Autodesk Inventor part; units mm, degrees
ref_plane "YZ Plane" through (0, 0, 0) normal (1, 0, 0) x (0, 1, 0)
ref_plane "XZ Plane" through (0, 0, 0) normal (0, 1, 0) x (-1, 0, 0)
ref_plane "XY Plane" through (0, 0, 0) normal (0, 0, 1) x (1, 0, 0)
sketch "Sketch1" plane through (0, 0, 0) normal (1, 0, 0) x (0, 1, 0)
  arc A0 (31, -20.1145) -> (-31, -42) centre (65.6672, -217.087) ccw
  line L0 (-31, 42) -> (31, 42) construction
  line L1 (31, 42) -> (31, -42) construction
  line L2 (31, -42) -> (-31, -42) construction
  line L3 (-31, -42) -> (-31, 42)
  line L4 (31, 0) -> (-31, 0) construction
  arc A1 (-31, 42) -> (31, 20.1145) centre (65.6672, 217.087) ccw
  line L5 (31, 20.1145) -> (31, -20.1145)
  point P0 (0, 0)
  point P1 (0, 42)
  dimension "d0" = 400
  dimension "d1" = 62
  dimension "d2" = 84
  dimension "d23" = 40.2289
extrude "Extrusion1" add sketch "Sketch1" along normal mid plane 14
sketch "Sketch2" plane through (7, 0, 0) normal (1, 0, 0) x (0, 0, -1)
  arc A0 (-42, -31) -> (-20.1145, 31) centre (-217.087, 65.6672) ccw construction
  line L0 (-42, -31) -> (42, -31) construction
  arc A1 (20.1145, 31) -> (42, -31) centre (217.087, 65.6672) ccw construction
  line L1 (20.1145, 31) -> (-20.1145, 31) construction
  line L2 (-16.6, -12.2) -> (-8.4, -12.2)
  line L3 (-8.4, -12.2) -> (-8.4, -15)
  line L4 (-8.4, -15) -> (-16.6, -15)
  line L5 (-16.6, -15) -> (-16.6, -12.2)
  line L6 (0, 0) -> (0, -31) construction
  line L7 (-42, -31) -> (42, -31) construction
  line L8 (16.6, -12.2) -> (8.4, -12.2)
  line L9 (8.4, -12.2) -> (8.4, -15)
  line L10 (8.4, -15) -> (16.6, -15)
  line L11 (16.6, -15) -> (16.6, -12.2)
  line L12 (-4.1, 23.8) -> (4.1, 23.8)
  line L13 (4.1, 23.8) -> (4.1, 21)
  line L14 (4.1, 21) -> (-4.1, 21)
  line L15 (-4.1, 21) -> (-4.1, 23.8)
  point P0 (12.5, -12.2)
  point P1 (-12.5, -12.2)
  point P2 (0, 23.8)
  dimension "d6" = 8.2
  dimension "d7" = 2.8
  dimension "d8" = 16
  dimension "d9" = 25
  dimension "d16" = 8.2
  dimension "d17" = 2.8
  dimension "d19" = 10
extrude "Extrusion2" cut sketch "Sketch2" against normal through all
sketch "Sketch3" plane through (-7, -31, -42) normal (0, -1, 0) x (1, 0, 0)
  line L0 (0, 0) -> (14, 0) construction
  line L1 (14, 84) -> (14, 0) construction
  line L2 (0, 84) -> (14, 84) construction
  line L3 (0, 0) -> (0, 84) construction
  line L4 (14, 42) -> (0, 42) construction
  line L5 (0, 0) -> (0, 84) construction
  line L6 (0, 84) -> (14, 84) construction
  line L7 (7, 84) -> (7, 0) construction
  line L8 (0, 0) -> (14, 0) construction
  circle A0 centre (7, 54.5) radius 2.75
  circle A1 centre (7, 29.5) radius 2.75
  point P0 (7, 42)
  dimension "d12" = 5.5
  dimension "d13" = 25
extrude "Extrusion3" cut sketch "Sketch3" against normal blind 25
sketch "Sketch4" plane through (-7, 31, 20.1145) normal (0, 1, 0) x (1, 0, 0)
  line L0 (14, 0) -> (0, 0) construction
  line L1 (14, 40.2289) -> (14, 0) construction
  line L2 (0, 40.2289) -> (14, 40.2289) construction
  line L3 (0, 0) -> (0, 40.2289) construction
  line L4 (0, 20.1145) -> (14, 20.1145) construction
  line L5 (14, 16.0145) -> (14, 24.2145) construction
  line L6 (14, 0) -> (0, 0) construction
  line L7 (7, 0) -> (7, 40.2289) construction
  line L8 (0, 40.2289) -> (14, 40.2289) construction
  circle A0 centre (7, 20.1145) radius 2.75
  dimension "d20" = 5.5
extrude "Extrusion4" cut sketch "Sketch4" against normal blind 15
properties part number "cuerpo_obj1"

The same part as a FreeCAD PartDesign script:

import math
import FreeCAD as App
import Part
import Sketcher

V = App.Vector

doc = App.newDocument("Part")
body = doc.addObject("PartDesign::Body", "Body")

# Sketch on YZ plane
sketch1 = doc.addObject("Sketcher::SketchObject", "Sketch")
body.addObject(sketch1)
sketch1.AttachmentSupport = (doc.YZ_Plane, [""])
sketch1.MapMode = "FlatFace"
sketch1.addGeometry([
    Part.ArcOfCircle(Part.Circle(V(66, -217, 0), V(0, 0, 1), 200), math.radians(99.98), math.radians(118.9)),
    Part.LineSegment(V(31, -20, 0), V(31, 20, 0)),
    Part.ArcOfCircle(Part.Circle(V(66, 217, 0), V(0, 0, 1), 200), math.radians(-118.9), math.radians(-99.98)),
    Part.LineSegment(V(-31, 42, 0), V(-31, -42, 0)),
], False)
sketch1.addConstraint([
    Sketcher.Constraint("Coincident", 0, 1, 1, 1),
    Sketcher.Constraint("Coincident", 1, 2, 2, 2),
    Sketcher.Constraint("Coincident", 2, 1, 3, 1),
    Sketcher.Constraint("Coincident", 3, 2, 0, 2),
    Sketcher.Constraint("Vertical", 1),
    Sketcher.Constraint("Vertical", 3),
    Sketcher.Constraint("DistanceY", 3, 2, 3, 1, 84.0),
    Sketcher.Constraint("DistanceX", 2, 1, 1, 2, 62.0),
    Sketcher.Constraint("DistanceY", 1, 1, 1, 2, 40.229),
    Sketcher.Constraint("DistanceX", -1, 1, 0, 1, 31.0),
    Sketcher.Constraint("DistanceY", -1, 1, 2, 1, 42.0),
    Sketcher.Constraint("Radius", 0, 200.0022),
    Sketcher.Constraint("Radius", 2, 199.9978),
    Sketcher.Constraint("DistanceY", -1, 1, 2, 3, 217.085),
])
pad1 = doc.addObject("PartDesign::Pad", "Pad")
body.addObject(pad1)
pad1.Profile = sketch1
pad1.Length = 14
pad1.Midplane = True

# Sketch on YZ plane
sketch2 = doc.addObject("Sketcher::SketchObject", "Sketch001")
body.addObject(sketch2)
sketch2.AttachmentSupport = (doc.YZ_Plane, [""])
sketch2.MapMode = "FlatFace"
sketch2.AttachmentOffset = App.Placement(V(0, 0, 7), App.Rotation())
sketch2.addGeometry([
    Part.LineSegment(V(-12.2, 8.4, 0), V(-12.2, 16.6, 0)),  # 0
    Part.LineSegment(V(-12.2, 16.6, 0), V(-15, 16.6, 0)),  # 1
    Part.LineSegment(V(-15, 16.6, 0), V(-15, 8.4, 0)),  # 2
    Part.LineSegment(V(-15, 8.4, 0), V(-12.2, 8.4, 0)),  # 3
    Part.LineSegment(V(-15, -16.6, 0), V(-12.2, -16.6, 0)),  # 4
    Part.LineSegment(V(-12.2, -16.6, 0), V(-12.2, -8.4, 0)),  # 5
    Part.LineSegment(V(-12.2, -8.4, 0), V(-15, -8.4, 0)),  # 6
    Part.LineSegment(V(-15, -8.4, 0), V(-15, -16.6, 0)),  # 7
    Part.LineSegment(V(23.8, -4.1, 0), V(23.8, 4.1, 0)),  # 8
    Part.LineSegment(V(23.8, 4.1, 0), V(21, 4.1, 0)),  # 9
    Part.LineSegment(V(21, 4.1, 0), V(21, -4.1, 0)),  # 10
    Part.LineSegment(V(21, -4.1, 0), V(23.8, -4.1, 0)),  # 11
], False)
sketch2.addConstraint([
    Sketcher.Constraint("Coincident", 0, 2, 1, 1),
    Sketcher.Constraint("Coincident", 1, 2, 2, 1),
    Sketcher.Constraint("Coincident", 2, 2, 3, 1),
    Sketcher.Constraint("Coincident", 3, 2, 0, 1),
    Sketcher.Constraint("Coincident", 4, 2, 5, 1),
    Sketcher.Constraint("Coincident", 5, 2, 6, 1),
    Sketcher.Constraint("Coincident", 6, 2, 7, 1),
    Sketcher.Constraint("Coincident", 7, 2, 4, 1),
    Sketcher.Constraint("Coincident", 8, 2, 9, 1),
    Sketcher.Constraint("Coincident", 9, 2, 10, 1),
    Sketcher.Constraint("Coincident", 10, 2, 11, 1),
    Sketcher.Constraint("Coincident", 11, 2, 8, 1),
    Sketcher.Constraint("Vertical", 0),
    Sketcher.Constraint("Horizontal", 1),
    Sketcher.Constraint("Vertical", 2),
    Sketcher.Constraint("Horizontal", 3),
    Sketcher.Constraint("Horizontal", 4),
    Sketcher.Constraint("Vertical", 5),
    Sketcher.Constraint("Horizontal", 6),
    Sketcher.Constraint("Vertical", 7),
    Sketcher.Constraint("Vertical", 8),
    Sketcher.Constraint("Horizontal", 9),
    Sketcher.Constraint("Vertical", 10),
    Sketcher.Constraint("Horizontal", 11),
    Sketcher.Constraint("Symmetric", 0, 2, 4, 2, -1),
    Sketcher.Constraint("Symmetric", 2, 2, 6, 2, -1),
    Sketcher.Constraint("Equal", 6, 9),
    Sketcher.Constraint("Equal", 7, 8),
    Sketcher.Constraint("DistanceX", 1, 2, 1, 1, 2.8),
    Sketcher.Constraint("DistanceY", 0, 1, 0, 2, 8.2),
    Sketcher.Constraint("DistanceY", 4, 2, 3, 2, 25.0),
    Sketcher.Constraint("DistanceX", 1, 2, -1, 1, 15.0),
    Sketcher.Constraint("DistanceX", -1, 1, 9, 2, 21.0),
    Sketcher.Constraint("DistanceY", -1, 1, 8, 2, 4.1),
])
pocket1 = doc.addObject("PartDesign::Pocket", "Pocket")
body.addObject(pocket1)
pocket1.Profile = sketch2
pocket1.Type = "ThroughAll"

# Sketch on XZ plane
sketch3 = doc.addObject("Sketcher::SketchObject", "Sketch002")
body.addObject(sketch3)
sketch3.AttachmentSupport = (doc.XZ_Plane, [""])
sketch3.MapMode = "FlatFace"
sketch3.AttachmentOffset = App.Placement(V(0, 0, 31), App.Rotation())
sketch3.addGeometry([
    Part.Circle(V(0, 12.5, 0), V(0, 0, 1), 2.8),
    Part.Circle(V(0, -12.5, 0), V(0, 0, 1), 2.8),
], False)
sketch3.addConstraint([
    Sketcher.Constraint("Equal", 0, 1),
    Sketcher.Constraint("Symmetric", 0, 3, 1, 3, -1, 1),
    Sketcher.Constraint("PointOnObject", 0, 3, -2),
    Sketcher.Constraint("Diameter", 0, 5.5),
    Sketcher.Constraint("DistanceY", 1, 3, 0, 3, 25.0),
])
pocket2 = doc.addObject("PartDesign::Pocket", "Pocket001")
body.addObject(pocket2)
pocket2.Profile = sketch3
pocket2.Length = 25

# Sketch on XZ plane
sketch4 = doc.addObject("Sketcher::SketchObject", "Sketch003")
body.addObject(sketch4)
sketch4.AttachmentSupport = (doc.XZ_Plane, [""])
sketch4.MapMode = "FlatFace"
sketch4.AttachmentOffset = App.Placement(V(0, 0, -31), App.Rotation())
sketch4.addGeometry(Part.Circle(V(0, 0, 0), V(0, 0, 1), 2.8), False)
sketch4.addConstraint([
    Sketcher.Constraint("Coincident", 0, 3, -1, 1),
    Sketcher.Constraint("Diameter", 0, 5.5),
])
pocket3 = doc.addObject("PartDesign::Pocket", "Pocket002")
body.addObject(pocket3)
pocket3.Profile = sketch4
pocket3.Length = 15
pocket3.Reversed = True

doc.recompute()
